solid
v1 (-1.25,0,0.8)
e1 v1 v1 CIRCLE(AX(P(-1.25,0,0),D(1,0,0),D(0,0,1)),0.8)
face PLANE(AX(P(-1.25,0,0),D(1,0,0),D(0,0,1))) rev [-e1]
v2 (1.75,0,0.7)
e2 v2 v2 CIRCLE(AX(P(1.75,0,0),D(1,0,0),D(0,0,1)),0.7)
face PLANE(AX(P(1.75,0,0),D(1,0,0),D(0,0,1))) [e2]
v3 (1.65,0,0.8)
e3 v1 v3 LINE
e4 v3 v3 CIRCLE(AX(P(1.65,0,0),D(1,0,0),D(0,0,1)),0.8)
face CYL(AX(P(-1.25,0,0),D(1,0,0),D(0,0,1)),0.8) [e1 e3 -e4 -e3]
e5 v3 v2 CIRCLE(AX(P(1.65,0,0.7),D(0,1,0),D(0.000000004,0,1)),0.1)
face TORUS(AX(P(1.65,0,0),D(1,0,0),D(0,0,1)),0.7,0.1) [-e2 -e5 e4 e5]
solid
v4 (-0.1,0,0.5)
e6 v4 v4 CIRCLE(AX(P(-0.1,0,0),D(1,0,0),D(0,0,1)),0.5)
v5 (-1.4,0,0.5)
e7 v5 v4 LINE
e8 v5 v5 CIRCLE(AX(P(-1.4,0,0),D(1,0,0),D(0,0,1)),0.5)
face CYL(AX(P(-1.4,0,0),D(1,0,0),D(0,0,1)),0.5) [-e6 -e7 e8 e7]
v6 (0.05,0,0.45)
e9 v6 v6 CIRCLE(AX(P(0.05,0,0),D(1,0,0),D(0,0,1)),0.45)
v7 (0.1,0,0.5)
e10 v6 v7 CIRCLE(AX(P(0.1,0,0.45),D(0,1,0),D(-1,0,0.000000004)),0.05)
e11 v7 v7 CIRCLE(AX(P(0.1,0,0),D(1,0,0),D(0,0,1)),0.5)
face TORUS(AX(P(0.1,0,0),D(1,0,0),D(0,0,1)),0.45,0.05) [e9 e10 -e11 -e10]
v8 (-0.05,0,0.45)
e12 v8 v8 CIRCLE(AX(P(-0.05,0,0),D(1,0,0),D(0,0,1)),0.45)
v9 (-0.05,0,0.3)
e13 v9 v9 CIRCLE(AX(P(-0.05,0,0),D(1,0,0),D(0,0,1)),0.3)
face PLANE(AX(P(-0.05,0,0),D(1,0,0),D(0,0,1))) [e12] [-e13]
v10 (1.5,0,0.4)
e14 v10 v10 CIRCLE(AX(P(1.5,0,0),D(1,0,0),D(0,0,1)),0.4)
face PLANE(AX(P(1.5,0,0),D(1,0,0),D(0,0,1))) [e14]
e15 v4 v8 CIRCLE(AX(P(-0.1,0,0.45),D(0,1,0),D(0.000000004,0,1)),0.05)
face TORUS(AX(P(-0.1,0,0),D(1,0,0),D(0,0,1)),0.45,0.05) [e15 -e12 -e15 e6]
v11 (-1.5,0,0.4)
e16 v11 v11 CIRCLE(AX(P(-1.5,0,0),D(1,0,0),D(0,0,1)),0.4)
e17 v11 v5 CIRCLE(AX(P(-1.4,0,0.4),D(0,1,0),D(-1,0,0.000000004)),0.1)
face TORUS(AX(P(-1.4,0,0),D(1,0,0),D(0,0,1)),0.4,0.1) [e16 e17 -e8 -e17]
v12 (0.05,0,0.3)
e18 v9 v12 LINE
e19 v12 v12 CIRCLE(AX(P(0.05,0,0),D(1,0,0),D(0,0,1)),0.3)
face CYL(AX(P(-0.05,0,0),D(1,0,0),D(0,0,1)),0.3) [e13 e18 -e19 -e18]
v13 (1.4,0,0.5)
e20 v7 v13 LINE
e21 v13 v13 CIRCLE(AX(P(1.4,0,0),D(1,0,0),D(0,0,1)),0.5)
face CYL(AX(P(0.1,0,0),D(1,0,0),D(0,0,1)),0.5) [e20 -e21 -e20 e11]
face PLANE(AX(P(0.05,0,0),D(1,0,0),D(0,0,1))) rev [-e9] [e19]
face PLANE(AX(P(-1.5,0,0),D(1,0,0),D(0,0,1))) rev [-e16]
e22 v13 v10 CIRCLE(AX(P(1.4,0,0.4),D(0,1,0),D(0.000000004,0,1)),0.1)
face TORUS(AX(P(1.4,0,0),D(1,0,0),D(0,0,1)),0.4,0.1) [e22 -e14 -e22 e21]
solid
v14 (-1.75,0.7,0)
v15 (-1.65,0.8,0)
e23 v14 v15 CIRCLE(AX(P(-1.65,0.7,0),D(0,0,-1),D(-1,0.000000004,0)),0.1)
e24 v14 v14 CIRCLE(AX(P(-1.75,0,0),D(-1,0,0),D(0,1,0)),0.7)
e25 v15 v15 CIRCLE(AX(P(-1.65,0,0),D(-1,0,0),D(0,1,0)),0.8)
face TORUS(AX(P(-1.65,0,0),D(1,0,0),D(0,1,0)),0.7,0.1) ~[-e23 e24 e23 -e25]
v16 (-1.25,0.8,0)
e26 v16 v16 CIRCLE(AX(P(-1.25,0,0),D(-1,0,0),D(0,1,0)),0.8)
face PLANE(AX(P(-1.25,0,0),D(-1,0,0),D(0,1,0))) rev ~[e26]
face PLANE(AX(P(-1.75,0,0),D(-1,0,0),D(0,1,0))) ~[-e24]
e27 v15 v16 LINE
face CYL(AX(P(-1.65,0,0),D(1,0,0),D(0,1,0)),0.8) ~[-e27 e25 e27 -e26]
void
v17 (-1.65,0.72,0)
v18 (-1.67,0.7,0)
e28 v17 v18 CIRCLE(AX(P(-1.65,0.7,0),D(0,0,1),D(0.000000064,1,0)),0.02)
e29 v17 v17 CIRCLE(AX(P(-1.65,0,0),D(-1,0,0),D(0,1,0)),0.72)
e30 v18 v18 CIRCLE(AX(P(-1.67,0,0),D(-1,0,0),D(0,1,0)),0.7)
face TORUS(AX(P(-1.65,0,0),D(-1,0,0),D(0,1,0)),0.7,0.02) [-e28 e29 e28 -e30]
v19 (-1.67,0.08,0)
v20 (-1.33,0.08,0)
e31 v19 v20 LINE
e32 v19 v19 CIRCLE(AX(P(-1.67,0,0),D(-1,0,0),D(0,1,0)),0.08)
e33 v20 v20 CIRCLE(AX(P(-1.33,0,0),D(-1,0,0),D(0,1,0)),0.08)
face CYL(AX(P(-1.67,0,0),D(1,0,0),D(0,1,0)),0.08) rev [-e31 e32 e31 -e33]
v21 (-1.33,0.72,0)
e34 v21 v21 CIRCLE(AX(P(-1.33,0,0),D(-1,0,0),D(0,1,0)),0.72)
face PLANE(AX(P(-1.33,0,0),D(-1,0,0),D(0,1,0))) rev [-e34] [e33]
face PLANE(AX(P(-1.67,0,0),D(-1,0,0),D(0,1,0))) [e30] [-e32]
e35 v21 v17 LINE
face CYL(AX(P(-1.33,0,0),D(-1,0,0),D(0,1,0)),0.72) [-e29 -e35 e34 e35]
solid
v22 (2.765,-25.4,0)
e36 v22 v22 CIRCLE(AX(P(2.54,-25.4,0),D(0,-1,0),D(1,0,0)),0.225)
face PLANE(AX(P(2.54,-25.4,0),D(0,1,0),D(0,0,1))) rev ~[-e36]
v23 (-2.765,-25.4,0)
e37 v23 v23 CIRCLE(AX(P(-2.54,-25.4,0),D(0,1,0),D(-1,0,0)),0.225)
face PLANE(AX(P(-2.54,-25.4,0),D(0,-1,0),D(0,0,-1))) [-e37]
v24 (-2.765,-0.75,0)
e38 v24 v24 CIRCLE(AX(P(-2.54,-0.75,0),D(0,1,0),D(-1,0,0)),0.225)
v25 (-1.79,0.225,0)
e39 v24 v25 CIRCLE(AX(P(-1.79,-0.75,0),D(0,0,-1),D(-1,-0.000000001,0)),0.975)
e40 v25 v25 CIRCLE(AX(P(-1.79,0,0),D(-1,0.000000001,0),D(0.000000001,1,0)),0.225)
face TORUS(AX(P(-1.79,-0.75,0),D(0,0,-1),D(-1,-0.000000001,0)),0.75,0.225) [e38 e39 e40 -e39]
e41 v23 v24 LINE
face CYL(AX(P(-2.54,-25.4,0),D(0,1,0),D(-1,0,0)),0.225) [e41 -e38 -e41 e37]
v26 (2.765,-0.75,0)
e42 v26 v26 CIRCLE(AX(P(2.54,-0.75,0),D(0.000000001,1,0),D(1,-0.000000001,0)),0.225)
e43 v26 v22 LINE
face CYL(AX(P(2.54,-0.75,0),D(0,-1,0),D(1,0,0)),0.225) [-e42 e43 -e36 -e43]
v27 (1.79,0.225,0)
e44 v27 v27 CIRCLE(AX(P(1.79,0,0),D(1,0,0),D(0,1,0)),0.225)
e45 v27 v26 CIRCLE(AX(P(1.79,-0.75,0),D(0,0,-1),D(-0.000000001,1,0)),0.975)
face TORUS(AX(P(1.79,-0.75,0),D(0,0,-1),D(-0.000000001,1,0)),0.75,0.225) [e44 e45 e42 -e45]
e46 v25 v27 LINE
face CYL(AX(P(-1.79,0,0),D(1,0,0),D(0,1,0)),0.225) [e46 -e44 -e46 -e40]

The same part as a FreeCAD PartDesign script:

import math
import FreeCAD as App
import Part
import Sketcher

V = App.Vector

doc = App.newDocument("Part")
params = doc.addObject("Spreadsheet::Sheet", "Params")
for row, (alias, value) in enumerate([
    ("sketch1_diameter", "0.45 mm"),
    ("sketch2_radius", "0.75 mm"),
    ("sketch2_width", "3.58 mm"),
    ("sketch2_height", "24.65 mm"),
    ("sketch3_radius", "0.1 mm"),
    ("sketch3_width", "3 mm"),
    ("sketch3_radius2", "0.05 mm"),
    ("sketch3_width2", "1.3 mm"),
    ("sketch3_height", "0.4 mm"),
    ("revolution_angle", "360 deg"),
    ("sketch4_radius", "0.1 mm"),
    ("sketch4_width", "3 mm"),
    ("sketch4_height", "0.8 mm"),
    ("revolution2_angle", "360 deg"),
    ("sketch5_radius", "0.1 mm"),
    ("sketch5_radius2", "0.02 mm"),
    ("sketch5_width", "0.5 mm"),
    ("sketch5_height", "0.8 mm"),
    ("sketch5_width2", "0.34 mm"),
    ("revolution3_angle", "360 deg"),
], start=1):
    params.set(f"A{row}", alias)
    params.set(f"B{row}", "=" + value)
    params.setAlias(f"B{row}", alias)

body = doc.addObject("PartDesign::Body", "Body")

# Sketch on XZ plane
sketch1 = doc.addObject("Sketcher::SketchObject", "Sketch")
body.addObject(sketch1)
sketch1.AttachmentSupport = (doc.XZ_Plane, [""])
sketch1.MapMode = "FlatFace"
sketch1.AttachmentOffset = App.Placement(V(0, 0, 25.4), App.Rotation())
sketch1.addGeometry(Part.Circle(V(-2.54, 0, 0), V(0, 0, 1), 0.23), False)
sketch1.addConstraint([
    Sketcher.Constraint("PointOnObject", 0, 3, -1),
    Sketcher.Constraint("Diameter", 0, 0.45),
    Sketcher.Constraint("DistanceX", 0, 3, -1, 1, 2.54),
])
sketch1.setExpression("Constraints[1]", "Params.sketch1_diameter")

# Sketch on XY plane
sketch2 = doc.addObject("Sketcher::SketchObject", "Sketch001")
body.addObject(sketch2)
sketch2.AttachmentSupport = (doc.XY_Plane, [""])
sketch2.MapMode = "FlatFace"
sketch2.addGeometry([
    Part.LineSegment(V(-2.5, -25.4, 0), V(-2.5, -0.8, 0)),  # 0
    Part.ArcOfCircle(Part.Circle(V(-1.8, -0.8, 0), V(0, 0, 1), 0.8), math.radians(90), math.radians(180)),  # 1
    Part.LineSegment(V(-1.8, 0, 0), V(1.8, 0, 0)),  # 2
    Part.ArcOfCircle(Part.Circle(V(1.8, -0.8, 0), V(0, 0, 1), 0.8), math.radians(0), math.radians(90)),  # 3
    Part.LineSegment(V(2.5, -0.8, 0), V(2.5, -25.4, 0)),  # 4
], False)
sketch2.addConstraint([
    Sketcher.Constraint("Tangent", 0, 2, 1, 2),
    Sketcher.Constraint("Tangent", 1, 1, 2, 1),
    Sketcher.Constraint("Tangent", 2, 2, 3, 2),
    Sketcher.Constraint("Tangent", 3, 1, 4, 1),
    Sketcher.Constraint("Vertical", 0),
    Sketcher.Constraint("Horizontal", 2),
    Sketcher.Constraint("Vertical", 4),
    Sketcher.Constraint("Equal", 1, 3),
    Sketcher.Constraint("Symmetric", 1, 1, 2, 2, -1, 1),
    Sketcher.Constraint("Horizontal", 0, 1, 4, 2),
    Sketcher.Constraint("Radius", 1, 0.75),
    Sketcher.Constraint("DistanceX", 2, 1, 2, 2, 3.58),
    Sketcher.Constraint("DistanceY", 0, 1, 0, 2, 24.65),
])
sketch2.setExpression("Constraints[10]", "Params.sketch2_radius")
sketch2.setExpression("Constraints[11]", "Params.sketch2_width")
sketch2.setExpression("Constraints[12]", "Params.sketch2_height")
doc.recompute()

additivepipe = doc.addObject("PartDesign::AdditivePipe", "AdditivePipe")
body.addObject(additivepipe)
additivepipe.Profile = sketch1
additivepipe.Spine = (sketch2, ["Edge1", "Edge2", "Edge3", "Edge4", "Edge5"])
body2 = doc.addObject("PartDesign::Body", "Body001")

# Sketch on XY plane
sketch3 = doc.addObject("Sketcher::SketchObject", "Sketch002")
body2.addObject(sketch3)
sketch3.AttachmentSupport = (doc.getObject("XY_Plane001"), [""])
sketch3.MapMode = "FlatFace"
sketch3.addGeometry([
    Part.LineSegment(V(-0.1, 0.5, 0), V(-1.4, 0.5, 0)),  # 0
    Part.ArcOfCircle(Part.Circle(V(-1.4, 0.4, 0), V(0, 0, 1), 0.1), math.radians(90), math.radians(180)),  # 1
    Part.LineSegment(V(-1.5, 0.4, 0), V(-1.5, 0, 0)),  # 2
    Part.LineSegment(V(-1.5, 0, 0), V(1.5, 0, 0)),  # 3
    Part.LineSegment(V(1.5, 0, 0), V(1.5, 0.4, 0)),  # 4
    Part.ArcOfCircle(Part.Circle(V(1.4, 0.4, 0), V(0, 0, 1), 0.1), math.radians(0), math.radians(90)),  # 5
    Part.LineSegment(V(1.4, 0.5, 0), V(0.1, 0.5, 0)),  # 6
    Part.ArcOfCircle(Part.Circle(V(0.1, 0.45, 0), V(0, 0, 1), 0.05), math.radians(90), math.radians(180)),  # 7
    Part.LineSegment(V(0.05, 0.45, 0), V(0.05, 0.3, 0)),  # 8
    Part.LineSegment(V(0.05, 0.3, 0), V(-0.05, 0.3, 0)),  # 9
    Part.LineSegment(V(-0.05, 0.3, 0), V(-0.05, 0.45, 0)),  # 10
    Part.ArcOfCircle(Part.Circle(V(-0.1, 0.45, 0), V(0, 0, 1), 0.05), math.radians(0), math.radians(90)),  # 11
], False)
sketch3.addConstraint([
    Sketcher.Constraint("Tangent", 0, 2, 1, 1),
    Sketcher.Constraint("Tangent", 1, 2, 2, 1),
    Sketcher.Constraint("Coincident", 2, 2, 3, 1),
    Sketcher.Constraint("Coincident", 3, 2, 4, 1),
    Sketcher.Constraint("Tangent", 4, 2, 5, 1),
    Sketcher.Constraint("Tangent", 5, 2, 6, 1),
    Sketcher.Constraint("Tangent", 6, 2, 7, 1),
    Sketcher.Constraint("Tangent", 7, 2, 8, 1),
    Sketcher.Constraint("Coincident", 8, 2, 9, 1),
    Sketcher.Constraint("Coincident", 9, 2, 10, 1),
    Sketcher.Constraint("Tangent", 10, 2, 11, 1),
    Sketcher.Constraint("Tangent", 11, 2, 0, 1),
    Sketcher.Constraint("Horizontal", 0),
    Sketcher.Constraint("Vertical", 2),
    Sketcher.Constraint("Horizontal", 3),
    Sketcher.Constraint("Vertical", 4),
    Sketcher.Constraint("Horizontal", 6),
    Sketcher.Constraint("Vertical", 8),
    Sketcher.Constraint("Horizontal", 9),
    Sketcher.Constraint("Vertical", 10),
    Sketcher.Constraint("Equal", 1, 5),
    Sketcher.Constraint("Equal", 7, 11),
    Sketcher.Constraint("Symmetric", 2, 2, 3, 2, -1, 1),
    Sketcher.Constraint("Symmetric", 7, 3, 11, 3, -2),
    Sketcher.Constraint("Radius", 1, 0.1),
    Sketcher.Constraint("DistanceX", 3, 1, 3, 2, 3.0),
    Sketcher.Constraint("Radius", 7, 0.05),
    Sketcher.Constraint("DistanceX", 0, 2, 0, 1, 1.3),
    Sketcher.Constraint("DistanceY", 2, 2, 2, 1, 0.4),
    Sketcher.Constraint("DistanceY", 8, 2, 8, 1, 0.15),
])
sketch3.setExpression("Constraints[24]", "Params.sketch3_radius")
sketch3.setExpression("Constraints[25]", "Params.sketch3_width")
sketch3.setExpression("Constraints[26]", "Params.sketch3_radius2")
sketch3.setExpression("Constraints[27]", "Params.sketch3_width2")
sketch3.setExpression("Constraints[28]", "Params.sketch3_height")
revolution = doc.addObject("PartDesign::Revolution", "Revolution")
body2.addObject(revolution)
revolution.Profile = sketch3
revolution.ReferenceAxis = (sketch3, ["H_Axis"])
revolution.setExpression("Angle", "Params.revolution_angle")
body3 = doc.addObject("PartDesign::Body", "Body002")

# Sketch on XY plane
sketch4 = doc.addObject("Sketcher::SketchObject", "Sketch003")
body3.addObject(sketch4)
sketch4.AttachmentSupport = (doc.getObject("XY_Plane002"), [""])
sketch4.MapMode = "FlatFace"
sketch4.addGeometry([
    Part.LineSegment(V(-1.25, 0.8, 0), V(-1.25, 0, 0)),  # 0
    Part.LineSegment(V(-1.25, 0, 0), V(1.75, 0, 0)),  # 1
    Part.LineSegment(V(1.75, 0, 0), V(1.75, 0.7, 0)),  # 2
    Part.ArcOfCircle(Part.Circle(V(1.65, 0.7, 0), V(0, 0, 1), 0.1), math.radians(0), math.radians(90)),  # 3
    Part.LineSegment(V(1.65, 0.8, 0), V(-1.25, 0.8, 0)),  # 4
], False)
sketch4.addConstraint([
    Sketcher.Constraint("Coincident", 0, 2, 1, 1),
    Sketcher.Constraint("Coincident", 1, 2, 2, 1),
    Sketcher.Constraint("Tangent", 2, 2, 3, 1),
    Sketcher.Constraint("Tangent", 3, 2, 4, 1),
    Sketcher.Constraint("Coincident", 4, 2, 0, 1),
    Sketcher.Constraint("Vertical", 0),
    Sketcher.Constraint("Horizontal", 1),
    Sketcher.Constraint("Vertical", 2),
    Sketcher.Constraint("Horizontal", 4),
    Sketcher.Constraint("PointOnObject", 0, 2, -1),
    Sketcher.Constraint("Radius", 3, 0.1),
    Sketcher.Constraint("DistanceX", 1, 1, 1, 2, 3.0),
    Sketcher.Constraint("DistanceY", 0, 2, 0, 1, 0.8),
    Sketcher.Constraint("DistanceX", -1, 1, 3, 3, 1.65),
])
sketch4.setExpression("Constraints[10]", "Params.sketch4_radius")
sketch4.setExpression("Constraints[11]", "Params.sketch4_width")
sketch4.setExpression("Constraints[12]", "Params.sketch4_height")
revolution2 = doc.addObject("PartDesign::Revolution", "Revolution001")
body3.addObject(revolution2)
revolution2.Profile = sketch4
revolution2.ReferenceAxis = (sketch4, ["H_Axis"])
revolution2.setExpression("Angle", "Params.revolution2_angle")
body4 = doc.addObject("PartDesign::Body", "Body003")

# Sketch on XY plane
sketch5 = doc.addObject("Sketcher::SketchObject", "Sketch004")
body4.addObject(sketch5)
sketch5.AttachmentSupport = (doc.getObject("XY_Plane003"), [""])
sketch5.MapMode = "FlatFace"
sketch5.addGeometry([
    Part.LineSegment(V(-1.75, 0, 0), V(-1.25, 0, 0)),  # 0
    Part.LineSegment(V(-1.25, 0, 0), V(-1.25, 0.8, 0)),  # 1
    Part.LineSegment(V(-1.25, 0.8, 0), V(-1.65, 0.8, 0)),  # 2
    Part.ArcOfCircle(Part.Circle(V(-1.65, 0.7, 0), V(0, 0, 1), 0.1), math.radians(90), math.radians(180)),  # 3
    Part.LineSegment(V(-1.75, 0.7, 0), V(-1.75, 0, 0)),  # 4
    Part.LineSegment(V(-1.33, 0.72, 0), V(-1.33, 0.08, 0)),  # 5
    Part.LineSegment(V(-1.33, 0.08, 0), V(-1.67, 0.08, 0)),  # 6
    Part.LineSegment(V(-1.67, 0.08, 0), V(-1.67, 0.7, 0)),  # 7
    Part.ArcOfCircle(Part.Circle(V(-1.65, 0.7, 0), V(0, 0, 1), 0.02), math.radians(90), math.radians(180)),  # 8
    Part.LineSegment(V(-1.65, 0.72, 0), V(-1.33, 0.72, 0)),  # 9
], False)
sketch5.addConstraint([
    Sketcher.Constraint("Coincident", 0, 2, 1, 1),
    Sketcher.Constraint("Coincident", 1, 2, 2, 1),
    Sketcher.Constraint("Tangent", 2, 2, 3, 1),
    Sketcher.Constraint("Tangent", 3, 2, 4, 1),
    Sketcher.Constraint("Coincident", 4, 2, 0, 1),
    Sketcher.Constraint("Coincident", 5, 2, 6, 1),
    Sketcher.Constraint("Coincident", 6, 2, 7, 1),
    Sketcher.Constraint("Tangent", 7, 2, 8, 2),
    Sketcher.Constraint("Tangent", 8, 1, 9, 1),
    Sketcher.Constraint("Coincident", 9, 2, 5, 1),
    Sketcher.Constraint("Horizontal", 0),
    Sketcher.Constraint("Vertical", 1),
    Sketcher.Constraint("Horizontal", 2),
    Sketcher.Constraint("Vertical", 4),
    Sketcher.Constraint("Vertical", 5),
    Sketcher.Constraint("Horizontal", 6),
    Sketcher.Constraint("Vertical", 7),
    Sketcher.Constraint("Horizontal", 9),
    Sketcher.Constraint("Coincident", 8, 3, 3, 3),
    Sketcher.Constraint("PointOnObject", 0, 2, -1),
    Sketcher.Constraint("Radius", 3, 0.1),
    Sketcher.Constraint("Radius", 8, 0.02),
    Sketcher.Constraint("DistanceX", 0, 1, 0, 2, 0.5),
    Sketcher.Constraint("DistanceY", 1, 1, 1, 2, 0.8),
    Sketcher.Constraint("DistanceX", 6, 2, 6, 1, 0.34),
    Sketcher.Constraint("DistanceY", 5, 2, 5, 1, 0.64),
    Sketcher.Constraint("DistanceX", 3, 3, -1, 1, 1.65),
])
sketch5.setExpression("Constraints[20]", "Params.sketch5_radius")
sketch5.setExpression("Constraints[21]", "Params.sketch5_radius2")
sketch5.setExpression("Constraints[22]", "Params.sketch5_width")
sketch5.setExpression("Constraints[23]", "Params.sketch5_height")
sketch5.setExpression("Constraints[24]", "Params.sketch5_width2")
revolution3 = doc.addObject("PartDesign::Revolution", "Revolution002")
body4.addObject(revolution3)
revolution3.Profile = sketch5
revolution3.ReferenceAxis = (sketch5, ["H_Axis"])
revolution3.setExpression("Angle", "Params.revolution3_angle")

doc.recompute()
